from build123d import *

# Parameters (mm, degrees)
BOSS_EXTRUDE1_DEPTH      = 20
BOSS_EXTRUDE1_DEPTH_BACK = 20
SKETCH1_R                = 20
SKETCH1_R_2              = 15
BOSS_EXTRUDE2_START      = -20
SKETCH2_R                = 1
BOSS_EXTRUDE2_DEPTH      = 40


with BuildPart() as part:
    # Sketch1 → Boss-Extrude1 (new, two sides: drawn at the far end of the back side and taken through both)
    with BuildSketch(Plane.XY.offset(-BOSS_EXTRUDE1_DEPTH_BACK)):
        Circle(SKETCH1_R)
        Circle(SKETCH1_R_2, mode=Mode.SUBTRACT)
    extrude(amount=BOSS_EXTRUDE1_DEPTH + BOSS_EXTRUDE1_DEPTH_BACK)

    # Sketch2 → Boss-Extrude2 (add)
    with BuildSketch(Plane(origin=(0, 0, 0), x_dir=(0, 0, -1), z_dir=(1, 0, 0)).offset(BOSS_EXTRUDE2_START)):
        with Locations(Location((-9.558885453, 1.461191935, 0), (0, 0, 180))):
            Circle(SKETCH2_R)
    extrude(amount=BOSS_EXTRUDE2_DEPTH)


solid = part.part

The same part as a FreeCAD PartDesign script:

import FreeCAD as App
import Part
import Sketcher
Q = App.Units.Quantity

doc = App.newDocument("Part")
body = doc.addObject("PartDesign::Body", "Body")

# Sketch on XY plane
sketch1 = body.newObject("Sketcher::SketchObject", "Sketch")
sketch1.AttachmentSupport = (doc.getObject("XY_Plane"), [""])
sketch1.MapMode = "FlatFace"
sketch1.addGeometry([
    Part.Circle(App.Vector(0, 0, 0), App.Vector(0, 0, 1), 20),
    Part.Circle(App.Vector(0, 0, 0), App.Vector(0, 0, 1), 15),
], False)
sketch1.addConstraint([
    Sketcher.Constraint("Coincident", 0, 3, -1, 1),
    Sketcher.Constraint("Coincident", 1, 3, -1, 1),
    Sketcher.Constraint("Diameter", 0, Q("40 mm")),
    Sketcher.Constraint("Diameter", 1, Q("30 mm")),
])
pad1 = body.newObject("PartDesign::Pad", "Pad")
pad1.Profile = sketch1
pad1.Type = "TwoLengths"
pad1.Length = 20
pad1.Length2 = 20

# Sketch on YZ plane
sketch2 = body.newObject("Sketcher::SketchObject", "Sketch001")
sketch2.AttachmentSupport = (doc.getObject("YZ_Plane"), [""])
sketch2.MapMode = "FlatFace"
sketch2.AttachmentOffset = App.Placement(App.Vector(0, 0, -20), App.Rotation())
sketch2.addGeometry(Part.Circle(App.Vector(1.5, 9.6, 0), App.Vector(0, 0, 1), 1), False)
sketch2.addConstraint([
    Sketcher.Constraint("Diameter", 0, Q("2 mm")),
    Sketcher.Constraint("DistanceX", -1, 1, 0, 3, Q("1.461192 mm")),
    Sketcher.Constraint("DistanceY", -1, 1, 0, 3, Q("9.558885 mm")),
])
pad2 = body.newObject("PartDesign::Pad", "Pad001")
pad2.Profile = sketch2
pad2.Length = 40

doc.recompute()
